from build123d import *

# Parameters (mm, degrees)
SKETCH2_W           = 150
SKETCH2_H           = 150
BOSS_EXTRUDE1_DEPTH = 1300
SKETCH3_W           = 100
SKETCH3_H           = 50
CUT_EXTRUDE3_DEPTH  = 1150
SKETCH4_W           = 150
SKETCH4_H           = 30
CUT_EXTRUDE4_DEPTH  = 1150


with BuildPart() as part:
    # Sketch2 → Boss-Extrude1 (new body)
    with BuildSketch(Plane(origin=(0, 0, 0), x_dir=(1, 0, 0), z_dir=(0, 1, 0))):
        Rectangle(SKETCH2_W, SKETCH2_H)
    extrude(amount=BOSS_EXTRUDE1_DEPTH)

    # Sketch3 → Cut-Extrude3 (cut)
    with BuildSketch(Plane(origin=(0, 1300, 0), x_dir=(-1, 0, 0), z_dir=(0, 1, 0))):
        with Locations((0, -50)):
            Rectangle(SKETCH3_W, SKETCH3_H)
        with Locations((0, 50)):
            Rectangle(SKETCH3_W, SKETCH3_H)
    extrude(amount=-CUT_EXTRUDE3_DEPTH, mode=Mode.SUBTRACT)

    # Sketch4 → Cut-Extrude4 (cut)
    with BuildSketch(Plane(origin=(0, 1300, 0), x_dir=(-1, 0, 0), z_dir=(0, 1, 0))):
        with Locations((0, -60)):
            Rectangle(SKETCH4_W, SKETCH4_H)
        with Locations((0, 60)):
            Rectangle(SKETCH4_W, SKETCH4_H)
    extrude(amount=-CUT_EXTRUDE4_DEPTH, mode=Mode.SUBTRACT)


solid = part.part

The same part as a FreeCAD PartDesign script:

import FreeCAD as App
import Part
import Sketcher

V = App.Vector


def add_polygon(sketch, points):
    """Adds a closed chain of lines whose ends are joined by coincident constraints."""
    first, n = sketch.GeometryCount, len(points)
    for a, b in zip(points, points[1:] + points[:1]):
        sketch.addGeometry(Part.LineSegment(App.Vector(*a, 0), App.Vector(*b, 0)), False)
    for i in range(n):
        sketch.addConstraint(Sketcher.Constraint("Coincident", first + i, 2, first + (i + 1) % n, 1))

doc = App.newDocument("Part")
body = doc.addObject("PartDesign::Body", "Body")

# Sketch on XZ plane
sketch1 = doc.addObject("Sketcher::SketchObject", "Sketch")
body.addObject(sketch1)
sketch1.AttachmentSupport = (doc.XZ_Plane, [""])
sketch1.MapMode = "FlatFace"
add_polygon(sketch1, [(-75, -75), (-75, 75), (75, 75), (75, -75)])  # lines 0-3
sketch1.addConstraint([
    Sketcher.Constraint("Vertical", 0),
    Sketcher.Constraint("Horizontal", 1),
    Sketcher.Constraint("Vertical", 2),
    Sketcher.Constraint("Horizontal", 3),
    Sketcher.Constraint("Symmetric", 0, 2, 2, 2, -1, 1),
    Sketcher.Constraint("Equal", 3, 0),
    Sketcher.Constraint("DistanceX", 1, 1, 1, 2, 150.0),
])
pad1 = doc.addObject("PartDesign::Pad", "Pad")
body.addObject(pad1)
pad1.Profile = sketch1
pad1.Length = 1300
pad1.Reversed = True

# Sketch on XZ plane
sketch2 = doc.addObject("Sketcher::SketchObject", "Sketch001")
body.addObject(sketch2)
sketch2.AttachmentSupport = (doc.XZ_Plane, [""])
sketch2.MapMode = "FlatFace"
sketch2.AttachmentOffset = App.Placement(V(0, 0, -1300), App.Rotation())
add_polygon(sketch2, [(50, -25), (50, -75), (-50, -75), (-50, -25)])  # lines 0-3
add_polygon(sketch2, [(50, 75), (50, 25), (-50, 25), (-50, 75)])  # lines 4-7
sketch2.addConstraint([
    Sketcher.Constraint("Vertical", 0),
    Sketcher.Constraint("Horizontal", 1),
    Sketcher.Constraint("Vertical", 2),
    Sketcher.Constraint("Horizontal", 3),
    Sketcher.Constraint("Vertical", 4),
    Sketcher.Constraint("Horizontal", 5),
    Sketcher.Constraint("Vertical", 6),
    Sketcher.Constraint("Horizontal", 7),
    Sketcher.Constraint("Symmetric", 2, 2, 4, 2, -1, 1),
    Sketcher.Constraint("Symmetric", 0, 2, 6, 2, -1, 1),
    Sketcher.Constraint("Vertical", 3, 2, 4, 2),
    Sketcher.Constraint("DistanceX", 1, 2, 1, 1, 100.0),
    Sketcher.Constraint("DistanceY", 0, 2, 0, 1, 50.0),
    Sketcher.Constraint("DistanceY", 0, 2, -1, 1, 75.0),
])
pocket1 = doc.addObject("PartDesign::Pocket", "Pocket")
body.addObject(pocket1)
pocket1.Profile = sketch2
pocket1.Length = 1150
pocket1.Reversed = True

# Sketch on XZ plane
sketch3 = doc.addObject("Sketcher::SketchObject", "Sketch002")
body.addObject(sketch3)
sketch3.AttachmentSupport = (doc.XZ_Plane, [""])
sketch3.MapMode = "FlatFace"
sketch3.AttachmentOffset = App.Placement(V(0, 0, -1300), App.Rotation())
add_polygon(sketch3, [(75, -45), (75, -75), (-75, -75), (-75, -45)])  # lines 0-3
add_polygon(sketch3, [(75, 75), (75, 45), (-75, 45), (-75, 75)])  # lines 4-7
sketch3.addConstraint([
    Sketcher.Constraint("Vertical", 0),
    Sketcher.Constraint("Horizontal", 1),
    Sketcher.Constraint("Vertical", 2),
    Sketcher.Constraint("Horizontal", 3),
    Sketcher.Constraint("Vertical", 4),
    Sketcher.Constraint("Horizontal", 5),
    Sketcher.Constraint("Vertical", 6),
    Sketcher.Constraint("Horizontal", 7),
    Sketcher.Constraint("Symmetric", 2, 2, 4, 2, -1, 1),
    Sketcher.Constraint("Symmetric", 0, 2, 6, 2, -1, 1),
    Sketcher.Constraint("Vertical", 3, 2, 4, 2),
    Sketcher.Constraint("DistanceX", 1, 2, 1, 1, 150.0),
    Sketcher.Constraint("DistanceY", 0, 2, 0, 1, 30.0),
    Sketcher.Constraint("DistanceY", 0, 2, -1, 1, 75.0),
])
pocket2 = doc.addObject("PartDesign::Pocket", "Pocket001")
body.addObject(pocket2)
pocket2.Profile = sketch3
pocket2.Length = 1150
pocket2.Reversed = True

doc.recompute()
